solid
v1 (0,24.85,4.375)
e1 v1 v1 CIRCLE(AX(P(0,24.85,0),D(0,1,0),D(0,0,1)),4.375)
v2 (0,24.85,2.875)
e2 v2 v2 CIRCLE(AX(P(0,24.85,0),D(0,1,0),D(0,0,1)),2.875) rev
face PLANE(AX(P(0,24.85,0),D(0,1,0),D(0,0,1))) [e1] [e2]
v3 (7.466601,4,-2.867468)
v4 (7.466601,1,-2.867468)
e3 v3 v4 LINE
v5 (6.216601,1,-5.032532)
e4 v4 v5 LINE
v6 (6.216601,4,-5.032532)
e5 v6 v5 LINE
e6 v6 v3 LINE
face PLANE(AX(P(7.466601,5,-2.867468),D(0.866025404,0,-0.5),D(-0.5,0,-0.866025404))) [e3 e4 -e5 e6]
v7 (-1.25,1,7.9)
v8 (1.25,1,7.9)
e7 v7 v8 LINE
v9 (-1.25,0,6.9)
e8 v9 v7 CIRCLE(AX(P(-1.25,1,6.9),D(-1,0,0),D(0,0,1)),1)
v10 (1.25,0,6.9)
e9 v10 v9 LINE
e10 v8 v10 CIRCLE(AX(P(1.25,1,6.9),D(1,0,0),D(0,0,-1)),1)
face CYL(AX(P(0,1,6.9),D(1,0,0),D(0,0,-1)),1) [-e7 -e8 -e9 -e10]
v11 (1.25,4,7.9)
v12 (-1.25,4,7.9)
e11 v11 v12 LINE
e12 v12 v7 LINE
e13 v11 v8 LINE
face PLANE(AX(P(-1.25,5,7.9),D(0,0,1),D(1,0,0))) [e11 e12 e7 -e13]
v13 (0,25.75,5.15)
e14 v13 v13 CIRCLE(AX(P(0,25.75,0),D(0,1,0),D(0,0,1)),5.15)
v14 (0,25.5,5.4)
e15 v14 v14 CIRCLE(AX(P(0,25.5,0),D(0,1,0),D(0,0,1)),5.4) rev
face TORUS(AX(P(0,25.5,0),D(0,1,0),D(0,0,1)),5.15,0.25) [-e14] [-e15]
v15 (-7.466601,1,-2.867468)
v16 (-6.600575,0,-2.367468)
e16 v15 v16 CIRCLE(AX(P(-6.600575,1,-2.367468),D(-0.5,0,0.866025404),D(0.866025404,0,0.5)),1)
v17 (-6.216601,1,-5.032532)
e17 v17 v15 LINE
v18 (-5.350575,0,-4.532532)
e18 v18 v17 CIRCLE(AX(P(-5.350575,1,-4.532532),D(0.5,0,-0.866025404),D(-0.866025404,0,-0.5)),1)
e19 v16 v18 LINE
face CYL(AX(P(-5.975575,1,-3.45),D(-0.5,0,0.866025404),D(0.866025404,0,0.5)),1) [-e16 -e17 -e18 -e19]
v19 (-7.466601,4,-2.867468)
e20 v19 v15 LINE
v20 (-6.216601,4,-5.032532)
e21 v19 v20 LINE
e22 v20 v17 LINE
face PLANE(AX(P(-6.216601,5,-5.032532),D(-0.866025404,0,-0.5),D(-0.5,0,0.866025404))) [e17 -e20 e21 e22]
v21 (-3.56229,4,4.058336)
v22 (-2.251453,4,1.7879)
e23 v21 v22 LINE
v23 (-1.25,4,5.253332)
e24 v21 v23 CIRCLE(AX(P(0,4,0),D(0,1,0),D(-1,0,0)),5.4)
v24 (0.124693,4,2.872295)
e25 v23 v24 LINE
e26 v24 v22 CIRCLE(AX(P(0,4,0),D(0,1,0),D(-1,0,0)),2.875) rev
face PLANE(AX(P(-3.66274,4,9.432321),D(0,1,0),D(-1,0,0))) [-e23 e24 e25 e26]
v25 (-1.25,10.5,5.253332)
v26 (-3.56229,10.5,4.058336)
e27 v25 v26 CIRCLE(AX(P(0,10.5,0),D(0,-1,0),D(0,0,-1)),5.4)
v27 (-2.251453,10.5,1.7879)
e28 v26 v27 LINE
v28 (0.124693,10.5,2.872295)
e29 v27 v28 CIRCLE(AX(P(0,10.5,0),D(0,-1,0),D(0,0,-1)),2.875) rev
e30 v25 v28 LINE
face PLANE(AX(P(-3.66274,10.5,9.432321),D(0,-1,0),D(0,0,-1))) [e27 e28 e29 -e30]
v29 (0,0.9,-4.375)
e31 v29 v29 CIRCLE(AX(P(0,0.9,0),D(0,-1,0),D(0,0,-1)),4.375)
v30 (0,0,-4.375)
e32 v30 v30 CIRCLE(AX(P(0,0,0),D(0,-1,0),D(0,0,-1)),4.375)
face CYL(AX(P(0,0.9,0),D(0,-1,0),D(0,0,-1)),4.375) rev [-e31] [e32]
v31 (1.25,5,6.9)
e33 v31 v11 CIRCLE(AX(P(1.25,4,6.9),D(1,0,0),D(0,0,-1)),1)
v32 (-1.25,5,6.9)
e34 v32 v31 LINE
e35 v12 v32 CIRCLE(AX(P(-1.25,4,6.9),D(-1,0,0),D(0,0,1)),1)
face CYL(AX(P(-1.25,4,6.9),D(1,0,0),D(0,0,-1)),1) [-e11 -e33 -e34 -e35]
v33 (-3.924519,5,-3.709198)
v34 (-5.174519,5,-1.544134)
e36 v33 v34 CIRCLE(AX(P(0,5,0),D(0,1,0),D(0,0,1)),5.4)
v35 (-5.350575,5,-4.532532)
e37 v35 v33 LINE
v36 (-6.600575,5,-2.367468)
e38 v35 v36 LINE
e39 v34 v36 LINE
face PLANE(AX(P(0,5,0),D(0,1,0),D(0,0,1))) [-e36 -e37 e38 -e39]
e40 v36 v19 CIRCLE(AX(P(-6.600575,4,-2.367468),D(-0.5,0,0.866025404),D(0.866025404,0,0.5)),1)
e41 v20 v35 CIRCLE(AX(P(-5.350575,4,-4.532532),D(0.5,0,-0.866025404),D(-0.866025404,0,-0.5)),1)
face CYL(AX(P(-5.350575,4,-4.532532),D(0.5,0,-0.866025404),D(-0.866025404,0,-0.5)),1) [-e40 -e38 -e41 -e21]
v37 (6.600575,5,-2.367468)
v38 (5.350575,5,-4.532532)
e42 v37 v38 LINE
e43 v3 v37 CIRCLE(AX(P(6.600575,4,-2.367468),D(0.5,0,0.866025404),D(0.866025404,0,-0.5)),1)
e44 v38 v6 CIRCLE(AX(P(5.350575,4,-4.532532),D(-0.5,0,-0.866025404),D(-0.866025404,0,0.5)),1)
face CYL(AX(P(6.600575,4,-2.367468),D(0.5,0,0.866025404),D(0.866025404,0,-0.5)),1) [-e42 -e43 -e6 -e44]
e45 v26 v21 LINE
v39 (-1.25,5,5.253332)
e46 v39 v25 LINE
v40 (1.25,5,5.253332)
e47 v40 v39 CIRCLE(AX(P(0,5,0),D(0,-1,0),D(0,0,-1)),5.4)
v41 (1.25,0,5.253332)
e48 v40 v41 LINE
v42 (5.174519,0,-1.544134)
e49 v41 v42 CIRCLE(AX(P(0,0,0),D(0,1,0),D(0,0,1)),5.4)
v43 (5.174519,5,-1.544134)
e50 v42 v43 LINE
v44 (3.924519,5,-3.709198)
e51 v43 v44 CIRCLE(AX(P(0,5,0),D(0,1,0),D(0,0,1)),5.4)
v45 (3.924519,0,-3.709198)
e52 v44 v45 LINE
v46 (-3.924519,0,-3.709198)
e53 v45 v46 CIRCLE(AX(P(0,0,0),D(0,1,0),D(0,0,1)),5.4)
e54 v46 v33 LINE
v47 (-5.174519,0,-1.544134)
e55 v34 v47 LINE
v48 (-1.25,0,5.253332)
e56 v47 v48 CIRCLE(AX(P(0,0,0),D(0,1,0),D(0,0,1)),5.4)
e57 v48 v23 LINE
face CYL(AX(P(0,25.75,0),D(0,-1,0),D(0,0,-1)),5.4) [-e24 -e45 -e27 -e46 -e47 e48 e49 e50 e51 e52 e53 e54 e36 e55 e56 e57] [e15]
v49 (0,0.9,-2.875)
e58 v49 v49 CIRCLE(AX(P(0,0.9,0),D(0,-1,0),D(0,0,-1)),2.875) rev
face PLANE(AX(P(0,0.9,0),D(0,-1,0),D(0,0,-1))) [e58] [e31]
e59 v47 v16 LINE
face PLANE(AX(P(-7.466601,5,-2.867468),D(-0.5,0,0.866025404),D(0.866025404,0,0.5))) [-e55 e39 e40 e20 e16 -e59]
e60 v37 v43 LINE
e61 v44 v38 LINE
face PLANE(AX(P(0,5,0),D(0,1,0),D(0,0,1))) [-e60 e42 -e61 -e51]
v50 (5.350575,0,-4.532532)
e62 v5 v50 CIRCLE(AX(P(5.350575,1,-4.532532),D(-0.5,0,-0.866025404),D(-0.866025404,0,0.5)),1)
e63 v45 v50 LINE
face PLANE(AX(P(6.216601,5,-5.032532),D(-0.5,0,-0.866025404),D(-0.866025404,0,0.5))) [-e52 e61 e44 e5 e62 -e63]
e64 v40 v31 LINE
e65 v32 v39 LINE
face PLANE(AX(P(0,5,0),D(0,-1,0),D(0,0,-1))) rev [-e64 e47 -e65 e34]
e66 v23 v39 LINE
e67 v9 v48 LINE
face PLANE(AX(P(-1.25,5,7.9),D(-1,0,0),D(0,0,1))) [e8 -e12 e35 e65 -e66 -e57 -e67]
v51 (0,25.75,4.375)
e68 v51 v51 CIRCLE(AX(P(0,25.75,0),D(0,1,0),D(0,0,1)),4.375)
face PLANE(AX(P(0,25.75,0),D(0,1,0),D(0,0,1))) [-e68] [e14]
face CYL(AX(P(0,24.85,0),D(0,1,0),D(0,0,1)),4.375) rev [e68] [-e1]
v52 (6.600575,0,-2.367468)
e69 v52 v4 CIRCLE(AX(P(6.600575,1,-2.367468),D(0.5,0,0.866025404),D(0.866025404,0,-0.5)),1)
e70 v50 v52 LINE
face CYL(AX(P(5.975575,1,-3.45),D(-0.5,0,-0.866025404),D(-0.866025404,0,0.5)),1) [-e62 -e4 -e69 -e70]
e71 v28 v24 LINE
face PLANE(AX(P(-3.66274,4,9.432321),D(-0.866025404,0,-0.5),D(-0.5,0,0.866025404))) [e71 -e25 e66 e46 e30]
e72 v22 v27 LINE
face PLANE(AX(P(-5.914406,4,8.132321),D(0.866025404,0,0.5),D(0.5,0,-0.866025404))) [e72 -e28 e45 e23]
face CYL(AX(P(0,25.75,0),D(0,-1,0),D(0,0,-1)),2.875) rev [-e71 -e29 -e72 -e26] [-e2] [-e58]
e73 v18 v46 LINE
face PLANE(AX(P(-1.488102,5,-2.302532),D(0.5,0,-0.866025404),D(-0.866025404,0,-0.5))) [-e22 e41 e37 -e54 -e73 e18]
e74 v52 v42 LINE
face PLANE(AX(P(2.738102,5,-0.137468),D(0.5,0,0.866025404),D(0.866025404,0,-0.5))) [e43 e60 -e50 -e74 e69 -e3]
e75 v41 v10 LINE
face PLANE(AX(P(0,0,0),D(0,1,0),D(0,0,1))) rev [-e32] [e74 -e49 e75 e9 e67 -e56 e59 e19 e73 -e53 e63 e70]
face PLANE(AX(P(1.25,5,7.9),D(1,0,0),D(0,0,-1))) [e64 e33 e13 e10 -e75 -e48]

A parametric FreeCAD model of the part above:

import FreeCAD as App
import Part
import Sketcher
Q = App.Units.Quantity


def edges_at(feature, points):
    """Names of the edges that pass closest to the given points."""
    edges = feature.Shape.Edges
    near = lambda p: min(range(len(edges)), key=lambda i: edges[i].distToShape(Part.Vertex(*p))[0])
    return sorted({f"Edge{near(p) + 1}" for p in points})

doc = App.newDocument("Part")
body = doc.addObject("PartDesign::Body", "Body")

# Sketch on XZ plane
sketch1 = body.newObject("Sketcher::SketchObject", "Sketch")
sketch1.AttachmentSupport = (doc.getObject("XZ_Plane"), [""])
sketch1.MapMode = "FlatFace"
sketch1.addGeometry(Part.Circle(App.Vector(0, 0, 0), App.Vector(0, 0, 1), 5), False)
sketch1.addConstraint([
    Sketcher.Constraint("Coincident", 0, 3, -1, 1),
    Sketcher.Constraint("Diameter", 0, Q("10.8 mm")),
])
pad1 = body.newObject("PartDesign::Pad", "Pad")
pad1.Profile = sketch1
pad1.Length = 25.75
pad1.Reversed = True

# Sketch on XZ plane
sketch2 = body.newObject("Sketcher::SketchObject", "Sketch001")
sketch2.AttachmentSupport = (doc.getObject("XZ_Plane"), [""])
sketch2.MapMode = "FlatFace"
sketch2.addGeometry([
    Part.LineSegment(App.Vector(7.5, -2.9, 0), App.Vector(2.7, -0.1, 0)),  # 0
    Part.LineSegment(App.Vector(2.7, -0.1, 0), App.Vector(1.5, -2.3, 0)),  # 1
    Part.LineSegment(App.Vector(1.5, -2.3, 0), App.Vector(6.2, -5, 0)),  # 2
    Part.LineSegment(App.Vector(6.2, -5, 0), App.Vector(7.5, -2.9, 0)),  # 3
    Part.LineSegment(App.Vector(-1.2, 7.9, 0), App.Vector(-1.2, 2.4, 0)),  # 4
    Part.LineSegment(App.Vector(-1.2, 2.4, 0), App.Vector(1.2, 2.4, 0)),  # 5
    Part.LineSegment(App.Vector(1.2, 2.4, 0), App.Vector(1.2, 7.9, 0)),  # 6
    Part.LineSegment(App.Vector(1.2, 7.9, 0), App.Vector(-1.2, 7.9, 0)),  # 7
    Part.LineSegment(App.Vector(-1.5, -2.3, 0), App.Vector(-2.7, -0.1, 0)),  # 8
    Part.LineSegment(App.Vector(-2.7, -0.1, 0), App.Vector(-7.5, -2.9, 0)),  # 9
    Part.LineSegment(App.Vector(-7.5, -2.9, 0), App.Vector(-6.2, -5, 0)),  # 10
    Part.LineSegment(App.Vector(-6.2, -5, 0), App.Vector(-1.5, -2.3, 0)),  # 11
], False)
sketch2.addConstraint([
    Sketcher.Constraint("Coincident", 0, 2, 1, 1),
    Sketcher.Constraint("Coincident", 1, 2, 2, 1),
    Sketcher.Constraint("Coincident", 2, 2, 3, 1),
    Sketcher.Constraint("Coincident", 3, 2, 0, 1),
    Sketcher.Constraint("Coincident", 4, 2, 5, 1),
    Sketcher.Constraint("Coincident", 5, 2, 6, 1),
    Sketcher.Constraint("Coincident", 6, 2, 7, 1),
    Sketcher.Constraint("Coincident", 7, 2, 4, 1),
    Sketcher.Constraint("Coincident", 8, 2, 9, 1),
    Sketcher.Constraint("Coincident", 9, 2, 10, 1),
    Sketcher.Constraint("Coincident", 10, 2, 11, 1),
    Sketcher.Constraint("Coincident", 11, 2, 8, 1),
    Sketcher.Constraint("Vertical", 4),
    Sketcher.Constraint("Horizontal", 5),
    Sketcher.Constraint("Vertical", 6),
    Sketcher.Constraint("Horizontal", 7),
    Sketcher.Constraint("Symmetric", 0, 2, 8, 2, -2),
    Sketcher.Constraint("Symmetric", 3, 2, 9, 2, -2),
    Sketcher.Constraint("Symmetric", 2, 2, 10, 2, -2),
    Sketcher.Constraint("Symmetric", 1, 2, 11, 2, -2),
    Sketcher.Constraint("Perpendicular", 0, 1),
    Sketcher.Constraint("Perpendicular", 1, 2),
    Sketcher.Constraint("Perpendicular", 2, 3),
    Sketcher.Constraint("Angle", 0, Q("150 deg")),
    Sketcher.Constraint("DistanceX", 5, 1, 5, 2, Q("2.5 mm")),
    Sketcher.Constraint("Distance", 1, Q("2.5 mm")),
    Sketcher.Constraint("DistanceY", -1, 1, 6, 2, Q("7.9 mm")),
    Sketcher.Constraint("Distance", 0, Q("5.46 mm")),
    Sketcher.Constraint("DistanceX", 4, 2, -1, 1, Q("1.25 mm")),
    Sketcher.Constraint("DistanceX", -1, 1, 0, 2, Q("2.738102 mm")),
    Sketcher.Constraint("DistanceY", 4, 2, 4, 1, Q("5.463227 mm")),
    Sketcher.Constraint("DistanceY", 0, 2, -1, 1, Q("0.137468 mm")),
])
pad2 = body.newObject("PartDesign::Pad", "Pad001")
pad2.Profile = sketch2
pad2.Length = 5
pad2.Reversed = True
doc.recompute()

fillet = body.newObject("PartDesign::Fillet", "Fillet")
fillet.Base = (pad2, edges_at(pad2, [
    (0, 5, 7.9),
    (0, 0, 7.9),
    (6.842, 5, -3.95),
    (6.842, 0, -3.95),
    (-6.842, 5, -3.95),
    (-6.842, 0, -3.95),
]))
fillet.Radius = 1
doc.recompute()

fillet2 = body.newObject("PartDesign::Fillet", "Fillet001")
fillet2.Base = (fillet, edges_at(fillet, [(-5.4, 25.75, 0)]))
fillet2.Radius = 0.25

# Sketch on XZ plane
sketch3 = body.newObject("Sketcher::SketchObject", "Sketch002")
sketch3.AttachmentSupport = (doc.getObject("XZ_Plane"), [""])
sketch3.MapMode = "FlatFace"
sketch3.addGeometry(Part.Circle(App.Vector(0, 0, 0), App.Vector(0, 0, 1), 2.9), False)
sketch3.addConstraint([
    Sketcher.Constraint("Coincident", 0, 3, -1, 1),
    Sketcher.Constraint("Diameter", 0, Q("5.75 mm")),
])
pocket1 = body.newObject("PartDesign::Pocket", "Pocket")
pocket1.Profile = sketch3
pocket1.Length = 25.75

# Sketch on XZ plane
sketch4 = body.newObject("Sketcher::SketchObject", "Sketch003")
sketch4.AttachmentSupport = (doc.getObject("XZ_Plane"), [""])
sketch4.MapMode = "FlatFace"
sketch4.addGeometry(Part.Circle(App.Vector(0, 0, 0), App.Vector(0, 0, 1), 4.4), False)
sketch4.addConstraint([
    Sketcher.Constraint("Coincident", 0, 3, -1, 1),
    Sketcher.Constraint("Diameter", 0, Q("8.75 mm")),
])
pocket2 = body.newObject("PartDesign::Pocket", "Pocket001")
pocket2.Profile = sketch4
pocket2.Length = 0.9

# Sketch on XZ plane
sketch5 = body.newObject("Sketcher::SketchObject", "Sketch004")
sketch5.AttachmentSupport = (doc.getObject("XZ_Plane"), [""])
sketch5.MapMode = "FlatFace"
sketch5.AttachmentOffset = App.Placement(App.Vector(0, 0, -25.75), App.Rotation())
sketch5.addGeometry(Part.Circle(App.Vector(0, 0, 0), App.Vector(0, 0, 1), 4.4), False)
sketch5.addConstraint([
    Sketcher.Constraint("Coincident", 0, 3, -1, 1),
    Sketcher.Constraint("Diameter", 0, Q("8.75 mm")),
])
pocket3 = body.newObject("PartDesign::Pocket", "Pocket002")
pocket3.Profile = sketch5
pocket3.Length = 0.9
pocket3.Reversed = True

# Sketch on an angled plane
sketch6 = body.newObject("Sketcher::SketchObject", "Sketch005")
sketch6.Placement = App.Placement(App.Vector(0, 0, 0), App.Rotation(App.Vector(0.866025404, 0, 0.5), App.Vector(0, 1, 0), App.Vector(-0.5, 0, 0.866025404), "ZXY"))
sketch6.addGeometry([
    Part.LineSegment(App.Vector(-1.1, 10.5, 0), App.Vector(-1.1, 4, 0)),
    Part.LineSegment(App.Vector(-1.1, 4, 0), App.Vector(1.5, 4, 0)),
    Part.LineSegment(App.Vector(1.5, 4, 0), App.Vector(1.5, 10.5, 0)),
    Part.LineSegment(App.Vector(1.5, 10.5, 0), App.Vector(-1.1, 10.5, 0)),
], False)
sketch6.addConstraint([
    Sketcher.Constraint("Coincident", 0, 2, 1, 1),
    Sketcher.Constraint("Coincident", 1, 2, 2, 1),
    Sketcher.Constraint("Coincident", 2, 2, 3, 1),
    Sketcher.Constraint("Coincident", 3, 2, 0, 1),
    Sketcher.Constraint("Vertical", 0),
    Sketcher.Constraint("Horizontal", 1),
    Sketcher.Constraint("Vertical", 2),
    Sketcher.Constraint("Horizontal", 3),
    Sketcher.Constraint("DistanceX", 1, 1, 1, 2, Q("2.6 mm")),
    Sketcher.Constraint("DistanceY", 0, 2, 0, 1, Q("6.5 mm")),
    Sketcher.Constraint("DistanceY", -1, 1, 0, 2, Q("4 mm")),
    Sketcher.Constraint("DistanceX", 0, 2, -1, 1, Q("1.055866 mm")),
])
pocket4 = body.newObject("PartDesign::Pocket", "Pocket003")
pocket4.Profile = sketch6
pocket4.Length = 10
pocket4.Reversed = True

doc.recompute()
